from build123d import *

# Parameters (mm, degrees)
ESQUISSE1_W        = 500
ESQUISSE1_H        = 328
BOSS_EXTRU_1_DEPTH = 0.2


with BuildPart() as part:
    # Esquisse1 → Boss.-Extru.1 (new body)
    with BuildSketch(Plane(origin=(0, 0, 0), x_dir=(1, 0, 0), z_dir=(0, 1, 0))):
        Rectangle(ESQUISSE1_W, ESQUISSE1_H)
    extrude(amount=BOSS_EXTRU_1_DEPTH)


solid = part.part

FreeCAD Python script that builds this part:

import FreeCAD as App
import Part
import Sketcher

doc = App.newDocument("Part")
body = doc.addObject("PartDesign::Body", "Body")

# Sketch on XZ plane
sketch1 = body.newObject("Sketcher::SketchObject", "Sketch")
sketch1.AttachmentSupport = (doc.getObject("XZ_Plane"), [""])
sketch1.MapMode = "FlatFace"
sketch1.addGeometry(Part.LineSegment(App.Vector(-250, -164, 0), App.Vector(-250, 164, 0)), False)
sketch1.addGeometry(Part.LineSegment(App.Vector(-250, 164, 0), App.Vector(250, 164, 0)), False)
sketch1.addGeometry(Part.LineSegment(App.Vector(250, 164, 0), App.Vector(250, -164, 0)), False)
sketch1.addGeometry(Part.LineSegment(App.Vector(250, -164, 0), App.Vector(-250, -164, 0)), False)
sketch1.addConstraint(Sketcher.Constraint("Coincident", 0, 2, 1, 1))
sketch1.addConstraint(Sketcher.Constraint("Coincident", 1, 2, 2, 1))
sketch1.addConstraint(Sketcher.Constraint("Coincident", 2, 2, 3, 1))
sketch1.addConstraint(Sketcher.Constraint("Coincident", 3, 2, 0, 1))
sketch1.addConstraint(Sketcher.Constraint("Vertical", 0))
sketch1.addConstraint(Sketcher.Constraint("Horizontal", 1))
sketch1.addConstraint(Sketcher.Constraint("Vertical", 2))
sketch1.addConstraint(Sketcher.Constraint("Horizontal", 3))
sketch1.addConstraint(Sketcher.Constraint("Symmetric", 0, 2, 2, 2, -1, 1))
sketch1.addConstraint(Sketcher.Constraint("DistanceX", 1, 1, 1, 2, 500.0))
sketch1.addConstraint(Sketcher.Constraint("DistanceY", 0, 1, 0, 2, 328.0))
pad1 = body.newObject("PartDesign::Pad", "Pad")
pad1.Profile = sketch1
pad1.Length = 0.2
pad1.Reversed = True

doc.recompute()
